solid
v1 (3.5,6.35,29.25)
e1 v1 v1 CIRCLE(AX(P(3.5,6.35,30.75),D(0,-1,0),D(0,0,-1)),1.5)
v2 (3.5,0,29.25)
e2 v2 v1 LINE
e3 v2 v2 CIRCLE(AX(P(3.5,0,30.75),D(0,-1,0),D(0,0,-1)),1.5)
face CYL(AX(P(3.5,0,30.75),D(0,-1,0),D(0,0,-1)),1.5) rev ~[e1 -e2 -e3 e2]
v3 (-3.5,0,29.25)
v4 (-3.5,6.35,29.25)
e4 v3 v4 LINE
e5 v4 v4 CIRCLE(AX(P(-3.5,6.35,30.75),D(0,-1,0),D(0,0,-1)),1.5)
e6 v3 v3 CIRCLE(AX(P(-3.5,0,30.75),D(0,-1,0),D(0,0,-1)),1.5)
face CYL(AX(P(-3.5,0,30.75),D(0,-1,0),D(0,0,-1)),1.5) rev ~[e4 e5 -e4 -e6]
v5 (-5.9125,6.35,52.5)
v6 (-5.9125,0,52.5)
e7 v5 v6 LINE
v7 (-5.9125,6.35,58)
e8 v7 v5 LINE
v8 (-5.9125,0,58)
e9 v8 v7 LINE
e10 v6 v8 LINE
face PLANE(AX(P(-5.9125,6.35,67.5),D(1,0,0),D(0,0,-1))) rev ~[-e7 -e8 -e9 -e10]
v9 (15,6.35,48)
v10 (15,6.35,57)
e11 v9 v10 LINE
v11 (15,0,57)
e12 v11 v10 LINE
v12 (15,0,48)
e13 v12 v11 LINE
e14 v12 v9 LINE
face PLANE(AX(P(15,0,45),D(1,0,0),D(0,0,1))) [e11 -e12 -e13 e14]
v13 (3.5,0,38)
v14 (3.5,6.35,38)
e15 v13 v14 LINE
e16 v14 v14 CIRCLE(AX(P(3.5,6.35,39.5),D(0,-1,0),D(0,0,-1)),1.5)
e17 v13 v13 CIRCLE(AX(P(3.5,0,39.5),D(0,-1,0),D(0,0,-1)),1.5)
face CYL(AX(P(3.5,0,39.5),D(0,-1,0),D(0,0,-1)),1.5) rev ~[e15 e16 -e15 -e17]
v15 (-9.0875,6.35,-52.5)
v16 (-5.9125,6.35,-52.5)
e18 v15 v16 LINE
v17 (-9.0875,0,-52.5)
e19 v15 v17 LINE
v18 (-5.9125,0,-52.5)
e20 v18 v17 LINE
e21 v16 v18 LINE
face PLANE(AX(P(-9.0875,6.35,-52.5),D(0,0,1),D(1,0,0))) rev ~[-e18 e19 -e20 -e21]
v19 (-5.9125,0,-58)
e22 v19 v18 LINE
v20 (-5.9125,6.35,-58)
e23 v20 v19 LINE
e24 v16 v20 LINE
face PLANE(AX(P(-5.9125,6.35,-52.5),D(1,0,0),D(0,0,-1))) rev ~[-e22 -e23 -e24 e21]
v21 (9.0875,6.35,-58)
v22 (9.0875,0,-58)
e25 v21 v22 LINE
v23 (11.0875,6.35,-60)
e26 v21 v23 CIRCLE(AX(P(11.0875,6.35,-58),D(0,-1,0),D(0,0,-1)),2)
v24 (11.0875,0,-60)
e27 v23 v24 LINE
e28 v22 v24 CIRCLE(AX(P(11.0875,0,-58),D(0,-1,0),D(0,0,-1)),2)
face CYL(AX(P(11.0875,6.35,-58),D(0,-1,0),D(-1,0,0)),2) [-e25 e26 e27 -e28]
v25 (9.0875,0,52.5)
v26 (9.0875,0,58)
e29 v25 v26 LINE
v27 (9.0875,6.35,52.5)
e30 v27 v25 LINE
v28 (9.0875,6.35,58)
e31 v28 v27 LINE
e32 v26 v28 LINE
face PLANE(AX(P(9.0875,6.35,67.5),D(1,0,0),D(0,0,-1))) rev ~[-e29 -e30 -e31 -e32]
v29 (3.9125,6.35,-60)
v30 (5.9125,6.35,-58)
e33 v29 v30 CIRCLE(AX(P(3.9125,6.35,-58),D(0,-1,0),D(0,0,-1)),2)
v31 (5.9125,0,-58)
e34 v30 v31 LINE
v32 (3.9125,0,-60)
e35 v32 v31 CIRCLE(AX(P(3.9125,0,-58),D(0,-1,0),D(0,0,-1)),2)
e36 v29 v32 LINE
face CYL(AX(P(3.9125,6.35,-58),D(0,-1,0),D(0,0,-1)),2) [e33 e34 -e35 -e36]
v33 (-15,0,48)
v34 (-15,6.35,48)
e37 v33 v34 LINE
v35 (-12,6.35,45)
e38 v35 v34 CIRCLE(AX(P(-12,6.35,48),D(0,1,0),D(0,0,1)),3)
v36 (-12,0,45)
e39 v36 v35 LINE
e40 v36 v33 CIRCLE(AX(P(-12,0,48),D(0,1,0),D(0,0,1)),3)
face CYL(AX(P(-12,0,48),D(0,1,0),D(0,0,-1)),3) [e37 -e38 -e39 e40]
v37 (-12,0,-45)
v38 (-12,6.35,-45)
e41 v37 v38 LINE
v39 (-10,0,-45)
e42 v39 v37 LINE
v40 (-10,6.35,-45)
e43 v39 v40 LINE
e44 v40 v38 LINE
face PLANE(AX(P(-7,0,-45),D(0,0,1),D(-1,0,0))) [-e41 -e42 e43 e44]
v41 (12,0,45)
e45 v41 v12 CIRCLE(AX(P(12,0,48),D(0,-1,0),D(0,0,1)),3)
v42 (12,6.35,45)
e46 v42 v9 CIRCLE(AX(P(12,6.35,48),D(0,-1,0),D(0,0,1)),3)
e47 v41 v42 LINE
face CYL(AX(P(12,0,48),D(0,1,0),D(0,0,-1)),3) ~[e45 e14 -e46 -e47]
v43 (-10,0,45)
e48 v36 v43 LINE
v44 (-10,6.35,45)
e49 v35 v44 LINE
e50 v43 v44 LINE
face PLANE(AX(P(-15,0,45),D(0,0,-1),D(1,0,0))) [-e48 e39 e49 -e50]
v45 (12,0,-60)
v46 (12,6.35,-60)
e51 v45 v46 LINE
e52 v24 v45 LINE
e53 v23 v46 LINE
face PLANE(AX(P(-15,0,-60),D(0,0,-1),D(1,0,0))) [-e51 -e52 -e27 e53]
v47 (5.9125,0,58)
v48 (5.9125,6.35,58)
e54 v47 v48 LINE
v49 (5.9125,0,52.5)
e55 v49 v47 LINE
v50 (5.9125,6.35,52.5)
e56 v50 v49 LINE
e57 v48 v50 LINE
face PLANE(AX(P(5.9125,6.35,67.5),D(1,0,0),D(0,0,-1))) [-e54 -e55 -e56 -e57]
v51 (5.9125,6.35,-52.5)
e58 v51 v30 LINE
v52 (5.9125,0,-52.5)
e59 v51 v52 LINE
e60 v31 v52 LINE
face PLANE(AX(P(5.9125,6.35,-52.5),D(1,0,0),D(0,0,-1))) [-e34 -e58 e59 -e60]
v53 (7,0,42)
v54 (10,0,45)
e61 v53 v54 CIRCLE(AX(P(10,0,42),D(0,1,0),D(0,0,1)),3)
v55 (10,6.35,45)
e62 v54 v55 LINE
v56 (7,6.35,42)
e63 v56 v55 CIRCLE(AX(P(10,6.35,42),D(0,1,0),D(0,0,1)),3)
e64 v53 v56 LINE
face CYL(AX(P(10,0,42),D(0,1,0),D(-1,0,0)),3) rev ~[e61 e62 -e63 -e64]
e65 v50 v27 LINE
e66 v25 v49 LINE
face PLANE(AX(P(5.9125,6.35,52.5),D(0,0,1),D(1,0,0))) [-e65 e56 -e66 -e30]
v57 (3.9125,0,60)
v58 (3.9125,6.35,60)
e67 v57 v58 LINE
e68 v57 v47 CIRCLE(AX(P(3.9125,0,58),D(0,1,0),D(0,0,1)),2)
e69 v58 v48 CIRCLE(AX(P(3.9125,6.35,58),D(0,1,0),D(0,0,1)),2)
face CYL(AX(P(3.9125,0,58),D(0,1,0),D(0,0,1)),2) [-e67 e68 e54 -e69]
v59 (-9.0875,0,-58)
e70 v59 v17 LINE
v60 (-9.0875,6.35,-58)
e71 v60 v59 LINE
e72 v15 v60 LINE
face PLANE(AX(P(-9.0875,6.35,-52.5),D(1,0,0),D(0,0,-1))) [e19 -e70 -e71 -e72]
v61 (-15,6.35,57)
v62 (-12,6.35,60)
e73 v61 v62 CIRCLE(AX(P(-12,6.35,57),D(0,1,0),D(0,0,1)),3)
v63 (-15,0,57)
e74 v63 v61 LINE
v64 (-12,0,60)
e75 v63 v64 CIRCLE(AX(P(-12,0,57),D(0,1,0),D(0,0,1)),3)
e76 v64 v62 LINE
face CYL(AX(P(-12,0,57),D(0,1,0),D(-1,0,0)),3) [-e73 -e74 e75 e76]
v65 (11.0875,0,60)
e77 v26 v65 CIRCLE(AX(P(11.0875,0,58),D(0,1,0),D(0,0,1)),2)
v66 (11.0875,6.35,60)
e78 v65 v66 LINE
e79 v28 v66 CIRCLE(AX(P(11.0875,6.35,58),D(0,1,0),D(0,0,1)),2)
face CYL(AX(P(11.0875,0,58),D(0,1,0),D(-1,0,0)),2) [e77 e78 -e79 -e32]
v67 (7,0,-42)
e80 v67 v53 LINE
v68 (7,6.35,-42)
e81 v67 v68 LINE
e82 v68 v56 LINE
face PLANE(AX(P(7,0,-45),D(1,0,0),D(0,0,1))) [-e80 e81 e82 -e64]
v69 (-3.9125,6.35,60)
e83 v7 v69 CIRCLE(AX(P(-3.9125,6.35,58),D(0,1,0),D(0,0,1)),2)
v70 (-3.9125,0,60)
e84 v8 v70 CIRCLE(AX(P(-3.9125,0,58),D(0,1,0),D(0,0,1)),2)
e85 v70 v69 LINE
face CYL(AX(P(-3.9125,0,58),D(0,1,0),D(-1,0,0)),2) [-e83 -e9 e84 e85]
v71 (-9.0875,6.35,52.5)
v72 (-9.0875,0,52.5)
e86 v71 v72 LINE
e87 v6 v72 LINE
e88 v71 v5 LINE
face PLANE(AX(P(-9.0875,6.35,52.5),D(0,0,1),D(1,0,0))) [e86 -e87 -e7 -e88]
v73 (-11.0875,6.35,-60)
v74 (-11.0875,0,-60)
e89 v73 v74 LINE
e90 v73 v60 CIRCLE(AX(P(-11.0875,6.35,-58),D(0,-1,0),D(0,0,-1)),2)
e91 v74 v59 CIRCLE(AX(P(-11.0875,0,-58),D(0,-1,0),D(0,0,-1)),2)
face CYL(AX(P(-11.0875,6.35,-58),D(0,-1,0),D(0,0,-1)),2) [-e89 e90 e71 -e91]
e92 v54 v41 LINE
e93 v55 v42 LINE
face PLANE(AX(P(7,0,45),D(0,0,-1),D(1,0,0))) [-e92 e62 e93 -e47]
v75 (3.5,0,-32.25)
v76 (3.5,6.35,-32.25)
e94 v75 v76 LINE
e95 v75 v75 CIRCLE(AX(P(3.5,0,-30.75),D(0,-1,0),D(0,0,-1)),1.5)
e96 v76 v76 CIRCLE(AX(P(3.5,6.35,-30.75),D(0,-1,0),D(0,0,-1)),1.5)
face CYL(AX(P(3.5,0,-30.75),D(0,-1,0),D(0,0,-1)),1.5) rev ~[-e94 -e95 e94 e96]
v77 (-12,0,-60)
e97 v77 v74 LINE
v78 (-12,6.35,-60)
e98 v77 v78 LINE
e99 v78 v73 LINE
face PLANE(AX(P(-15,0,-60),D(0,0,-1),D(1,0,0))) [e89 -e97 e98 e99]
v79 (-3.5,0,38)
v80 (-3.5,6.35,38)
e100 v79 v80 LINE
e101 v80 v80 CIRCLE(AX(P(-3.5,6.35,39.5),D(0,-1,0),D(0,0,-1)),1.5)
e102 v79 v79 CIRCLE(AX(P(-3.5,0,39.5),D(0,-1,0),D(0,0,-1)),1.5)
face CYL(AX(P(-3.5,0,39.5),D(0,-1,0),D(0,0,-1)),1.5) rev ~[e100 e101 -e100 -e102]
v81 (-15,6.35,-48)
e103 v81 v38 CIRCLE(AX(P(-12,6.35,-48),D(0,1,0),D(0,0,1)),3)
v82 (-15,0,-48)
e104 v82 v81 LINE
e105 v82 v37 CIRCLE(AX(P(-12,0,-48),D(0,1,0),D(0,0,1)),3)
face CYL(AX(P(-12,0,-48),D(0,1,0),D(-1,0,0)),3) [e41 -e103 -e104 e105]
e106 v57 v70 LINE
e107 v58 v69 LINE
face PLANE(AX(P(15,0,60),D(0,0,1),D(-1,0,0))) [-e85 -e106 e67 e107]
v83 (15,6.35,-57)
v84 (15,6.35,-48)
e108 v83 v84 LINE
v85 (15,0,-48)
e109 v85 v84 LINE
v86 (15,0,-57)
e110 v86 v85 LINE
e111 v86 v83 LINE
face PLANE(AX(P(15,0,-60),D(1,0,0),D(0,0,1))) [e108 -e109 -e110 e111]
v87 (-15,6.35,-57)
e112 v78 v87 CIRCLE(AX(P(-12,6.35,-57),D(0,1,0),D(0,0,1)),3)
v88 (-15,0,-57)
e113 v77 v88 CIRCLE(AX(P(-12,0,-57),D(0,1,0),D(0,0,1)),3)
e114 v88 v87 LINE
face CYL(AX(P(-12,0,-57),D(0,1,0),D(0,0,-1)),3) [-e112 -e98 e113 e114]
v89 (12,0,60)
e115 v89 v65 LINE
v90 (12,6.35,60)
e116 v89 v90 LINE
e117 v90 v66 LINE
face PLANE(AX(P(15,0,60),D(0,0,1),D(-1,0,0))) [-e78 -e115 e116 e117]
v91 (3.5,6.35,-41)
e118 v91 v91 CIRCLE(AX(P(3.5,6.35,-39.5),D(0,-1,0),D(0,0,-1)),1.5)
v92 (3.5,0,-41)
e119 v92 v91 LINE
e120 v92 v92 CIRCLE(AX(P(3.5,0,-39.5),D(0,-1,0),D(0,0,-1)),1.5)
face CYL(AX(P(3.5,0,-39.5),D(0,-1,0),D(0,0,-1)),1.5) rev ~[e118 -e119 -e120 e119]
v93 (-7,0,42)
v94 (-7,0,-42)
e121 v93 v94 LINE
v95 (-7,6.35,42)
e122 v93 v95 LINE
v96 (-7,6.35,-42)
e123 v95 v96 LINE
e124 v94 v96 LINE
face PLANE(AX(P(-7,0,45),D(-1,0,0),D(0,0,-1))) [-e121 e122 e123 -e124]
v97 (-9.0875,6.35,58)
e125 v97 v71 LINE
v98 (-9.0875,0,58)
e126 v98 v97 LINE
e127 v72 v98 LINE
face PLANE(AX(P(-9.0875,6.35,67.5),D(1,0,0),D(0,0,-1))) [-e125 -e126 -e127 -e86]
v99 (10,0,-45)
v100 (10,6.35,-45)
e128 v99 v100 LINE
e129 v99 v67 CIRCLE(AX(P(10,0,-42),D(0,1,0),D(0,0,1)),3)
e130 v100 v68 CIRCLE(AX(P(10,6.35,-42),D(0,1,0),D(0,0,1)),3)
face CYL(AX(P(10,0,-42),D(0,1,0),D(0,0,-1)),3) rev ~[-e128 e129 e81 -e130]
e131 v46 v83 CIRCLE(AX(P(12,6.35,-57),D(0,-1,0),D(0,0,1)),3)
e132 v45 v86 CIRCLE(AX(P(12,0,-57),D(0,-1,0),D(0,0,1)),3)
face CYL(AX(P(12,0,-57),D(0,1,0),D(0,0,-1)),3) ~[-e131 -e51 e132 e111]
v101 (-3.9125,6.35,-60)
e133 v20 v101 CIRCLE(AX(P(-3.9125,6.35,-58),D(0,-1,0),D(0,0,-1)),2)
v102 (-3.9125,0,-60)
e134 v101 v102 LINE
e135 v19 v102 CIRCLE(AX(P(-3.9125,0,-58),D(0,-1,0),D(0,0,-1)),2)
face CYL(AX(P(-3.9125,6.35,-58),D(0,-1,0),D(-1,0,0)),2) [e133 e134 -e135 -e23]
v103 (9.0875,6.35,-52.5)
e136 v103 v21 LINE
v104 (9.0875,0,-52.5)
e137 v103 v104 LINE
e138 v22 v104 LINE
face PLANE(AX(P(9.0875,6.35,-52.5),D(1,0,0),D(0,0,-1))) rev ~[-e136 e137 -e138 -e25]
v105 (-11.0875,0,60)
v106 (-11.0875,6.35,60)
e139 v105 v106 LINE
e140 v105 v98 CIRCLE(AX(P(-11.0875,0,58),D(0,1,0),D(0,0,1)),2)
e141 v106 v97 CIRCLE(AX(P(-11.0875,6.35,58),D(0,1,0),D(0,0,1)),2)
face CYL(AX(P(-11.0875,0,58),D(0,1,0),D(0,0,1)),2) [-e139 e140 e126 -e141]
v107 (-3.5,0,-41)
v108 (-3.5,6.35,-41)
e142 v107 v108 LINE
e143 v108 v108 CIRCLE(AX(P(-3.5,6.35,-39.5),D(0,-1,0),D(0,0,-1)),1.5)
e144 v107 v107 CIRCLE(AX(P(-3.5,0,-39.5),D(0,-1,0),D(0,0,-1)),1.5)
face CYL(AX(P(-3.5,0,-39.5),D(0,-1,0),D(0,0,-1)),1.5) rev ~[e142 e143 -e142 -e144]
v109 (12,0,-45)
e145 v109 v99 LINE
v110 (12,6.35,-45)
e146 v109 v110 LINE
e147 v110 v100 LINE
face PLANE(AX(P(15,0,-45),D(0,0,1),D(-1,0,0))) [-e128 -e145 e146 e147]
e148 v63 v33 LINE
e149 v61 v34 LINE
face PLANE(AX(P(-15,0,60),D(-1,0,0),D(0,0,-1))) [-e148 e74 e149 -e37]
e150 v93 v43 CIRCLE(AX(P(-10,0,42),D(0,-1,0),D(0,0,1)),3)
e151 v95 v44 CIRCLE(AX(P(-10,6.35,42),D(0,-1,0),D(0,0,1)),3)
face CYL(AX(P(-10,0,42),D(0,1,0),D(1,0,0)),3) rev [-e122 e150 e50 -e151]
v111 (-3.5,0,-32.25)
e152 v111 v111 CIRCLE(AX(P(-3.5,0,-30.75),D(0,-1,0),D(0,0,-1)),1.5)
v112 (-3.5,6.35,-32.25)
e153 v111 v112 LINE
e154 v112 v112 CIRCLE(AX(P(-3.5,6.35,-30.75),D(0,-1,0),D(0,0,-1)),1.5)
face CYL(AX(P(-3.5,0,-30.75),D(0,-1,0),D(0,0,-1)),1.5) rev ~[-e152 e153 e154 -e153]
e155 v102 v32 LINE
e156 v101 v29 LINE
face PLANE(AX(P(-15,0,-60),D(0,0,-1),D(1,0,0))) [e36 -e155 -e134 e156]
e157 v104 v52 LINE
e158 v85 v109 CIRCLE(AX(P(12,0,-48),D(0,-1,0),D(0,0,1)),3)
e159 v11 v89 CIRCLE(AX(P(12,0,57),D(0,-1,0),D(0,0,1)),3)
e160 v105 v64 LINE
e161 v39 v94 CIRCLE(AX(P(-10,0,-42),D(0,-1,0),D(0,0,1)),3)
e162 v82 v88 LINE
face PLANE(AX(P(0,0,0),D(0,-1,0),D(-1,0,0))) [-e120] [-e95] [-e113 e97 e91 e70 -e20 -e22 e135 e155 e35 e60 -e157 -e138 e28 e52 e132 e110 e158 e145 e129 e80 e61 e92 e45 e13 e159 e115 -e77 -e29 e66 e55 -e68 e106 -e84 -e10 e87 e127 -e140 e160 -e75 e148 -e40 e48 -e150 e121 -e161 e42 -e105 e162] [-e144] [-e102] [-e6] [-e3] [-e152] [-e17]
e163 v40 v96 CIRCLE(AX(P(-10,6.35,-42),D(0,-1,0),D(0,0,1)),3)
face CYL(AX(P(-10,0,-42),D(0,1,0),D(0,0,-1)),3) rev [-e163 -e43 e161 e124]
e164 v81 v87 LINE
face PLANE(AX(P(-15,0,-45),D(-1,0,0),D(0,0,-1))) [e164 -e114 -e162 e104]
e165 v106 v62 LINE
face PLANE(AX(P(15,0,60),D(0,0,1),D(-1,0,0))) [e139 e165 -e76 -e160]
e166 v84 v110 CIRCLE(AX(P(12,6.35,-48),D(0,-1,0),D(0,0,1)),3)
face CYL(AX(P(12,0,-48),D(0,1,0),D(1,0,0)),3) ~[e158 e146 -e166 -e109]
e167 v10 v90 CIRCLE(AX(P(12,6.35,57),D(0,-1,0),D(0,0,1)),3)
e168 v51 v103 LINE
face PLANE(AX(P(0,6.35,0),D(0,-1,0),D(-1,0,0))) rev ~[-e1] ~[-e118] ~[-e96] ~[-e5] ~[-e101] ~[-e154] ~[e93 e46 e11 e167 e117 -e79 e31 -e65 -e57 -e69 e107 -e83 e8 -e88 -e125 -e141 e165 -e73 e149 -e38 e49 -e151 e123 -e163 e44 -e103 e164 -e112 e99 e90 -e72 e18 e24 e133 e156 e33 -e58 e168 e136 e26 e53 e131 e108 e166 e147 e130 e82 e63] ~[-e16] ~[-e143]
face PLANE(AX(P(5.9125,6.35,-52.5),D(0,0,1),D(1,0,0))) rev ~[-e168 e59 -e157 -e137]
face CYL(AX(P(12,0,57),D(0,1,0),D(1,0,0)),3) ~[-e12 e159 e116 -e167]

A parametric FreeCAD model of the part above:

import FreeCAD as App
import Part
import Sketcher
from FreeCAD import Vector
Q = App.Units.Quantity


def edges_at(feature, points):
    """Names of the edges that pass closest to the given points."""
    edges = feature.Shape.Edges
    near = lambda p: min(range(len(edges)), key=lambda i: edges[i].distToShape(Part.Vertex(*p))[0])
    return sorted({f"Edge{near(p) + 1}" for p in points})


def add_polygon(sketch, points):
    """Adds a closed chain of lines whose ends are joined by coincident constraints."""
    first, n = sketch.GeometryCount, len(points)
    for a, b in zip(points, points[1:] + points[:1]):
        sketch.addGeometry(Part.LineSegment(App.Vector(*a, 0), App.Vector(*b, 0)), False)
    for i in range(n):
        sketch.addConstraint(Sketcher.Constraint("Coincident", first + i, 2, first + (i + 1) % n, 1))

doc = App.newDocument("Part")
body = doc.addObject("PartDesign::Body", "Body")

# Sketch on XZ plane
sketch1 = doc.addObject("Sketcher::SketchObject", "Sketch")
body.addObject(sketch1)
sketch1.AttachmentSupport = (doc.XZ_Plane, [""])
sketch1.MapMode = "FlatFace"
add_polygon(sketch1, [(15, -60), (-15, -60), (-15, -45), (-7, -45), (-7, 45), (-15, 45), (-15, 60), (15, 60), (15, 45), (7, 45), (7, -45), (15, -45)])  # lines 0-11
sketch1.addConstraint(Sketcher.Constraint("Horizontal", 0))
sketch1.addConstraint(Sketcher.Constraint("Vertical", 1))
sketch1.addConstraint(Sketcher.Constraint("Horizontal", 2))
sketch1.addConstraint(Sketcher.Constraint("Vertical", 3))
sketch1.addConstraint(Sketcher.Constraint("Horizontal", 4))
sketch1.addConstraint(Sketcher.Constraint("Vertical", 5))
sketch1.addConstraint(Sketcher.Constraint("Horizontal", 6))
sketch1.addConstraint(Sketcher.Constraint("Vertical", 7))
sketch1.addConstraint(Sketcher.Constraint("Horizontal", 8))
sketch1.addConstraint(Sketcher.Constraint("Vertical", 9))
sketch1.addConstraint(Sketcher.Constraint("Horizontal", 10))
sketch1.addConstraint(Sketcher.Constraint("Vertical", 11))
sketch1.addConstraint(Sketcher.Constraint("Symmetric", 0, 2, 6, 2, -1, 1))
sketch1.addConstraint(Sketcher.Constraint("Symmetric", 2, 2, 8, 2, -1, 1))
sketch1.addConstraint(Sketcher.Constraint("Symmetric", 4, 2, 10, 2, -1, 1))
sketch1.addConstraint(Sketcher.Constraint("Symmetric", 4, 2, 7, 2, -2))
sketch1.addConstraint(Sketcher.Constraint("DistanceX", 0, 2, 0, 1, Q("30 mm")))
sketch1.addConstraint(Sketcher.Constraint("DistanceX", 2, 1, 2, 2, Q("8 mm")))
sketch1.addConstraint(Sketcher.Constraint("DistanceY", 1, 1, 1, 2, Q("15 mm")))
sketch1.addConstraint(Sketcher.Constraint("DistanceY", 3, 1, 3, 2, Q("90 mm")))
pad1 = doc.addObject("PartDesign::Pad", "Pad")
body.addObject(pad1)
pad1.Profile = sketch1
pad1.Length = 6.35
pad1.Reversed = True

# Sketch on XZ plane
sketch2 = doc.addObject("Sketcher::SketchObject", "Sketch001")
body.addObject(sketch2)
sketch2.AttachmentSupport = (doc.XZ_Plane, [""])
sketch2.MapMode = "FlatFace"
sketch2.AttachmentOffset = App.Placement(Vector(0, 0, -6.35), App.Rotation())
add_polygon(sketch2, [(5.9125, -67.5), (5.9125, -52.5), (9.0875, -52.5), (9.0875, -67.5)])  # lines 0-3
add_polygon(sketch2, [(-9.0875, -67.5), (-9.0875, -52.5), (-5.9125, -52.5), (-5.9125, -67.5)])  # lines 4-7
add_polygon(sketch2, [(5.9125, 52.5), (5.9125, 67.5), (9.0875, 67.5), (9.0875, 52.5)])  # lines 8-11
add_polygon(sketch2, [(-9.0875, 52.5), (-9.0875, 67.5), (-5.9125, 67.5), (-5.9125, 52.5)])  # lines 12-15
sketch2.addConstraint(Sketcher.Constraint("Vertical", 0))
sketch2.addConstraint(Sketcher.Constraint("Horizontal", 1))
sketch2.addConstraint(Sketcher.Constraint("Vertical", 2))
sketch2.addConstraint(Sketcher.Constraint("Horizontal", 3))
sketch2.addConstraint(Sketcher.Constraint("Vertical", 4))
sketch2.addConstraint(Sketcher.Constraint("Horizontal", 5))
sketch2.addConstraint(Sketcher.Constraint("Vertical", 6))
sketch2.addConstraint(Sketcher.Constraint("Horizontal", 7))
sketch2.addConstraint(Sketcher.Constraint("Vertical", 8))
sketch2.addConstraint(Sketcher.Constraint("Horizontal", 9))
sketch2.addConstraint(Sketcher.Constraint("Vertical", 10))
sketch2.addConstraint(Sketcher.Constraint("Horizontal", 11))
sketch2.addConstraint(Sketcher.Constraint("Vertical", 12))
sketch2.addConstraint(Sketcher.Constraint("Horizontal", 13))
sketch2.addConstraint(Sketcher.Constraint("Vertical", 14))
sketch2.addConstraint(Sketcher.Constraint("Horizontal", 15))
sketch2.addConstraint(Sketcher.Constraint("Symmetric", 6, 2, 8, 2, -1, 1))
sketch2.addConstraint(Sketcher.Constraint("Symmetric", 4, 2, 10, 2, -1, 1))
sketch2.addConstraint(Sketcher.Constraint("Symmetric", 2, 2, 12, 2, -1, 1))
sketch2.addConstraint(Sketcher.Constraint("Symmetric", 0, 2, 14, 2, -1, 1))
sketch2.addConstraint(Sketcher.Constraint("Symmetric", 1, 2, 4, 2, -2))
sketch2.addConstraint(Sketcher.Constraint("Symmetric", 3, 2, 6, 2, -2))
sketch2.addConstraint(Sketcher.Constraint("DistanceY", 0, 1, 0, 2, Q("15 mm")))
sketch2.addConstraint(Sketcher.Constraint("DistanceX", 4, 2, 0, 2, Q("15 mm")))
sketch2.addConstraint(Sketcher.Constraint("DistanceY", 0, 2, 8, 2, Q("120 mm")))
sketch2.addConstraint(Sketcher.Constraint("DistanceX", 1, 1, 1, 2, Q("3.175 mm")))
pocket1 = doc.addObject("PartDesign::Pocket", "Pocket")
body.addObject(pocket1)
pocket1.Profile = sketch2
pocket1.Type = "ThroughAll"
pocket1.Reversed = True

# Sketch on XZ plane
sketch3 = doc.addObject("Sketcher::SketchObject", "Sketch002")
body.addObject(sketch3)
sketch3.AttachmentSupport = (doc.XZ_Plane, [""])
sketch3.MapMode = "FlatFace"
sketch3.addGeometry(Part.Circle(Vector(3.5, -39.5, 0), Vector(0, 0, 1), 1.5), False)
sketch3.addGeometry(Part.Circle(Vector(-3.5, -39.5, 0), Vector(0, 0, 1), 1.5), False)
sketch3.addGeometry(Part.Circle(Vector(-3.5, -30.75, 0), Vector(0, 0, 1), 1.5), False)
sketch3.addGeometry(Part.Circle(Vector(3.5, 30.75, 0), Vector(0, 0, 1), 1.5), False)
sketch3.addGeometry(Part.Circle(Vector(-3.5, 30.75, 0), Vector(0, 0, 1), 1.5), False)
sketch3.addGeometry(Part.Circle(Vector(3.5, 39.5, 0), Vector(0, 0, 1), 1.5), False)
sketch3.addGeometry(Part.Circle(Vector(-3.5, 39.5, 0), Vector(0, 0, 1), 1.5), False)
sketch3.addGeometry(Part.Circle(Vector(3.5, -30.75, 0), Vector(0, 0, 1), 1.5), False)
sketch3.addConstraint(Sketcher.Constraint("Equal", 0, 1))
sketch3.addConstraint(Sketcher.Constraint("Equal", 1, 2))
sketch3.addConstraint(Sketcher.Constraint("Equal", 2, 3))
sketch3.addConstraint(Sketcher.Constraint("Equal", 3, 4))
sketch3.addConstraint(Sketcher.Constraint("Equal", 4, 5))
sketch3.addConstraint(Sketcher.Constraint("Equal", 5, 6))
sketch3.addConstraint(Sketcher.Constraint("Equal", 6, 7))
sketch3.addConstraint(Sketcher.Constraint("Symmetric", 2, 3, 3, 3, -1, 1))
sketch3.addConstraint(Sketcher.Constraint("Symmetric", 1, 3, 5, 3, -1, 1))
sketch3.addConstraint(Sketcher.Constraint("Symmetric", 0, 3, 6, 3, -1, 1))
sketch3.addConstraint(Sketcher.Constraint("Symmetric", 4, 3, 7, 3, -1, 1))
sketch3.addConstraint(Sketcher.Constraint("Symmetric", 0, 3, 1, 3, -2))
sketch3.addConstraint(Sketcher.Constraint("Symmetric", 3, 3, 4, 3, -2))
sketch3.addConstraint(Sketcher.Constraint("Vertical", 1, 3, 2, 3))
sketch3.addConstraint(Sketcher.Constraint("Diameter", 0, Q("3 mm")))
sketch3.addConstraint(Sketcher.Constraint("DistanceX", 1, 3, 0, 3, Q("7 mm")))
sketch3.addConstraint(Sketcher.Constraint("DistanceY", 0, 3, 5, 3, Q("79 mm")))
sketch3.addConstraint(Sketcher.Constraint("DistanceY", 2, 3, 3, 3, Q("61.5 mm")))
pocket2 = doc.addObject("PartDesign::Pocket", "Pocket001")
body.addObject(pocket2)
pocket2.Profile = sketch3
pocket2.Length = 10
doc.recompute()

fillet = doc.addObject("PartDesign::Fillet", "Fillet")
body.addObject(fillet)
fillet.Base = (pocket2, edges_at(pocket2, [
    (-5.912, 3.175, -60),
    (-9.088, 3.175, -60),
    (5.912, 3.175, 60),
    (9.088, 3.175, 60),
    (-5.912, 3.175, 60),
    (-9.088, 3.175, 60),
    (9.088, 3.175, -60),
    (5.912, 3.175, -60),
]))
fillet.Radius = 2
doc.recompute()

fillet2 = doc.addObject("PartDesign::Fillet", "Fillet001")
body.addObject(fillet2)
fillet2.Base = (fillet, edges_at(fillet, [
    (7, 3.175, -45),
    (7, 3.175, 45),
    (15, 3.175, 45),
    (15, 3.175, 60),
    (-15, 3.175, 60),
    (-15, 3.175, 45),
    (-7, 3.175, 45),
    (-7, 3.175, -45),
    (-15, 3.175, -45),
    (-15, 3.175, -60),
    (15, 3.175, -60),
    (15, 3.175, -45),
]))
fillet2.Radius = 3

doc.recompute()
